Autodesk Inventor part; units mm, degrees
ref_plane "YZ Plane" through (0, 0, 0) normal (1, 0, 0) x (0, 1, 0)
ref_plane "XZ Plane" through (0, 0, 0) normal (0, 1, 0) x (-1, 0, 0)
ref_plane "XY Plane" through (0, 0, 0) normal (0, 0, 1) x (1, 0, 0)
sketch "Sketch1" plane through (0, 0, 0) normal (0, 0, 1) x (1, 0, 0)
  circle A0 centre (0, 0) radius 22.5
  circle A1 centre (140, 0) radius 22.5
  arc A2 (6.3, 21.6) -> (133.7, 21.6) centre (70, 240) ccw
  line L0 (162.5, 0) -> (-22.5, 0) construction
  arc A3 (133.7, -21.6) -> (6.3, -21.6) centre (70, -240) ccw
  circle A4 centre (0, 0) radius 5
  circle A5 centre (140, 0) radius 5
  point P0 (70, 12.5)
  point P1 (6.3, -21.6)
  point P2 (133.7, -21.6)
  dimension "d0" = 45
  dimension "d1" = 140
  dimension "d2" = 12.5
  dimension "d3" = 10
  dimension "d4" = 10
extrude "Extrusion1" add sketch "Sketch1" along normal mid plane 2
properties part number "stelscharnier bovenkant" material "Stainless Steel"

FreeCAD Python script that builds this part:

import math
import FreeCAD as App
import Part
import Sketcher
from FreeCAD import Vector
Q = App.Units.Quantity

doc = App.newDocument("Part")
body = doc.addObject("PartDesign::Body", "Body")

sketch1 = doc.addObject("Sketcher::SketchObject", "Sketch")
body.addObject(sketch1)
sketch1.AttachmentSupport = (doc.XY_Plane, [""])
sketch1.MapMode = "FlatFace"
sketch1.addGeometry(Part.ArcOfCircle(Part.Circle(Vector(0, 0, 0), Vector(0, 0, 1), 22), math.radians(74), math.radians(286)), False)
sketch1.addGeometry(Part.ArcOfCircle(Part.Circle(Vector(70, -240, 0), Vector(0, 0, 1), 228), math.radians(74), math.radians(106)), False)
sketch1.addGeometry(Part.ArcOfCircle(Part.Circle(Vector(140, 0, 0), Vector(0, 0, 1), 22), math.radians(-106), math.radians(106)), False)
sketch1.addGeometry(Part.ArcOfCircle(Part.Circle(Vector(70, 240, 0), Vector(0, 0, 1), 228), math.radians(-106), math.radians(-74)), False)
sketch1.addGeometry(Part.Circle(Vector(0, 0, 0), Vector(0, 0, 1), 5), False)
sketch1.addGeometry(Part.Circle(Vector(140, 0, 0), Vector(0, 0, 1), 5), False)
sketch1.addConstraint(Sketcher.Constraint("Tangent", 0, 2, 1, 2))
sketch1.addConstraint(Sketcher.Constraint("Tangent", 1, 1, 2, 1))
sketch1.addConstraint(Sketcher.Constraint("Tangent", 2, 2, 3, 2))
sketch1.addConstraint(Sketcher.Constraint("Tangent", 3, 1, 0, 1))
sketch1.addConstraint(Sketcher.Constraint("Coincident", 0, 3, -1, 1))
sketch1.addConstraint(Sketcher.Constraint("Coincident", 4, 3, -1, 1))
sketch1.addConstraint(Sketcher.Constraint("Coincident", 5, 3, 2, 3))
sketch1.addConstraint(Sketcher.Constraint("Equal", 0, 2))
sketch1.addConstraint(Sketcher.Constraint("Equal", 1, 3))
sketch1.addConstraint(Sketcher.Constraint("Equal", 4, 5))
sketch1.addConstraint(Sketcher.Constraint("PointOnObject", 2, 3, -1))
sketch1.addConstraint(Sketcher.Constraint("Diameter", 4, Q("10 mm")))
sketch1.addConstraint(Sketcher.Constraint("Radius", 0, Q("22.5 mm")))
sketch1.addConstraint(Sketcher.Constraint("DistanceX", -1, 1, 2, 3, Q("140 mm")))
sketch1.addConstraint(Sketcher.Constraint("Radius", 1, Q("227.5 mm")))
pad1 = doc.addObject("PartDesign::Pad", "Pad")
body.addObject(pad1)
pad1.Profile = sketch1
pad1.Length = 2
pad1.Midplane = True

doc.recompute()
